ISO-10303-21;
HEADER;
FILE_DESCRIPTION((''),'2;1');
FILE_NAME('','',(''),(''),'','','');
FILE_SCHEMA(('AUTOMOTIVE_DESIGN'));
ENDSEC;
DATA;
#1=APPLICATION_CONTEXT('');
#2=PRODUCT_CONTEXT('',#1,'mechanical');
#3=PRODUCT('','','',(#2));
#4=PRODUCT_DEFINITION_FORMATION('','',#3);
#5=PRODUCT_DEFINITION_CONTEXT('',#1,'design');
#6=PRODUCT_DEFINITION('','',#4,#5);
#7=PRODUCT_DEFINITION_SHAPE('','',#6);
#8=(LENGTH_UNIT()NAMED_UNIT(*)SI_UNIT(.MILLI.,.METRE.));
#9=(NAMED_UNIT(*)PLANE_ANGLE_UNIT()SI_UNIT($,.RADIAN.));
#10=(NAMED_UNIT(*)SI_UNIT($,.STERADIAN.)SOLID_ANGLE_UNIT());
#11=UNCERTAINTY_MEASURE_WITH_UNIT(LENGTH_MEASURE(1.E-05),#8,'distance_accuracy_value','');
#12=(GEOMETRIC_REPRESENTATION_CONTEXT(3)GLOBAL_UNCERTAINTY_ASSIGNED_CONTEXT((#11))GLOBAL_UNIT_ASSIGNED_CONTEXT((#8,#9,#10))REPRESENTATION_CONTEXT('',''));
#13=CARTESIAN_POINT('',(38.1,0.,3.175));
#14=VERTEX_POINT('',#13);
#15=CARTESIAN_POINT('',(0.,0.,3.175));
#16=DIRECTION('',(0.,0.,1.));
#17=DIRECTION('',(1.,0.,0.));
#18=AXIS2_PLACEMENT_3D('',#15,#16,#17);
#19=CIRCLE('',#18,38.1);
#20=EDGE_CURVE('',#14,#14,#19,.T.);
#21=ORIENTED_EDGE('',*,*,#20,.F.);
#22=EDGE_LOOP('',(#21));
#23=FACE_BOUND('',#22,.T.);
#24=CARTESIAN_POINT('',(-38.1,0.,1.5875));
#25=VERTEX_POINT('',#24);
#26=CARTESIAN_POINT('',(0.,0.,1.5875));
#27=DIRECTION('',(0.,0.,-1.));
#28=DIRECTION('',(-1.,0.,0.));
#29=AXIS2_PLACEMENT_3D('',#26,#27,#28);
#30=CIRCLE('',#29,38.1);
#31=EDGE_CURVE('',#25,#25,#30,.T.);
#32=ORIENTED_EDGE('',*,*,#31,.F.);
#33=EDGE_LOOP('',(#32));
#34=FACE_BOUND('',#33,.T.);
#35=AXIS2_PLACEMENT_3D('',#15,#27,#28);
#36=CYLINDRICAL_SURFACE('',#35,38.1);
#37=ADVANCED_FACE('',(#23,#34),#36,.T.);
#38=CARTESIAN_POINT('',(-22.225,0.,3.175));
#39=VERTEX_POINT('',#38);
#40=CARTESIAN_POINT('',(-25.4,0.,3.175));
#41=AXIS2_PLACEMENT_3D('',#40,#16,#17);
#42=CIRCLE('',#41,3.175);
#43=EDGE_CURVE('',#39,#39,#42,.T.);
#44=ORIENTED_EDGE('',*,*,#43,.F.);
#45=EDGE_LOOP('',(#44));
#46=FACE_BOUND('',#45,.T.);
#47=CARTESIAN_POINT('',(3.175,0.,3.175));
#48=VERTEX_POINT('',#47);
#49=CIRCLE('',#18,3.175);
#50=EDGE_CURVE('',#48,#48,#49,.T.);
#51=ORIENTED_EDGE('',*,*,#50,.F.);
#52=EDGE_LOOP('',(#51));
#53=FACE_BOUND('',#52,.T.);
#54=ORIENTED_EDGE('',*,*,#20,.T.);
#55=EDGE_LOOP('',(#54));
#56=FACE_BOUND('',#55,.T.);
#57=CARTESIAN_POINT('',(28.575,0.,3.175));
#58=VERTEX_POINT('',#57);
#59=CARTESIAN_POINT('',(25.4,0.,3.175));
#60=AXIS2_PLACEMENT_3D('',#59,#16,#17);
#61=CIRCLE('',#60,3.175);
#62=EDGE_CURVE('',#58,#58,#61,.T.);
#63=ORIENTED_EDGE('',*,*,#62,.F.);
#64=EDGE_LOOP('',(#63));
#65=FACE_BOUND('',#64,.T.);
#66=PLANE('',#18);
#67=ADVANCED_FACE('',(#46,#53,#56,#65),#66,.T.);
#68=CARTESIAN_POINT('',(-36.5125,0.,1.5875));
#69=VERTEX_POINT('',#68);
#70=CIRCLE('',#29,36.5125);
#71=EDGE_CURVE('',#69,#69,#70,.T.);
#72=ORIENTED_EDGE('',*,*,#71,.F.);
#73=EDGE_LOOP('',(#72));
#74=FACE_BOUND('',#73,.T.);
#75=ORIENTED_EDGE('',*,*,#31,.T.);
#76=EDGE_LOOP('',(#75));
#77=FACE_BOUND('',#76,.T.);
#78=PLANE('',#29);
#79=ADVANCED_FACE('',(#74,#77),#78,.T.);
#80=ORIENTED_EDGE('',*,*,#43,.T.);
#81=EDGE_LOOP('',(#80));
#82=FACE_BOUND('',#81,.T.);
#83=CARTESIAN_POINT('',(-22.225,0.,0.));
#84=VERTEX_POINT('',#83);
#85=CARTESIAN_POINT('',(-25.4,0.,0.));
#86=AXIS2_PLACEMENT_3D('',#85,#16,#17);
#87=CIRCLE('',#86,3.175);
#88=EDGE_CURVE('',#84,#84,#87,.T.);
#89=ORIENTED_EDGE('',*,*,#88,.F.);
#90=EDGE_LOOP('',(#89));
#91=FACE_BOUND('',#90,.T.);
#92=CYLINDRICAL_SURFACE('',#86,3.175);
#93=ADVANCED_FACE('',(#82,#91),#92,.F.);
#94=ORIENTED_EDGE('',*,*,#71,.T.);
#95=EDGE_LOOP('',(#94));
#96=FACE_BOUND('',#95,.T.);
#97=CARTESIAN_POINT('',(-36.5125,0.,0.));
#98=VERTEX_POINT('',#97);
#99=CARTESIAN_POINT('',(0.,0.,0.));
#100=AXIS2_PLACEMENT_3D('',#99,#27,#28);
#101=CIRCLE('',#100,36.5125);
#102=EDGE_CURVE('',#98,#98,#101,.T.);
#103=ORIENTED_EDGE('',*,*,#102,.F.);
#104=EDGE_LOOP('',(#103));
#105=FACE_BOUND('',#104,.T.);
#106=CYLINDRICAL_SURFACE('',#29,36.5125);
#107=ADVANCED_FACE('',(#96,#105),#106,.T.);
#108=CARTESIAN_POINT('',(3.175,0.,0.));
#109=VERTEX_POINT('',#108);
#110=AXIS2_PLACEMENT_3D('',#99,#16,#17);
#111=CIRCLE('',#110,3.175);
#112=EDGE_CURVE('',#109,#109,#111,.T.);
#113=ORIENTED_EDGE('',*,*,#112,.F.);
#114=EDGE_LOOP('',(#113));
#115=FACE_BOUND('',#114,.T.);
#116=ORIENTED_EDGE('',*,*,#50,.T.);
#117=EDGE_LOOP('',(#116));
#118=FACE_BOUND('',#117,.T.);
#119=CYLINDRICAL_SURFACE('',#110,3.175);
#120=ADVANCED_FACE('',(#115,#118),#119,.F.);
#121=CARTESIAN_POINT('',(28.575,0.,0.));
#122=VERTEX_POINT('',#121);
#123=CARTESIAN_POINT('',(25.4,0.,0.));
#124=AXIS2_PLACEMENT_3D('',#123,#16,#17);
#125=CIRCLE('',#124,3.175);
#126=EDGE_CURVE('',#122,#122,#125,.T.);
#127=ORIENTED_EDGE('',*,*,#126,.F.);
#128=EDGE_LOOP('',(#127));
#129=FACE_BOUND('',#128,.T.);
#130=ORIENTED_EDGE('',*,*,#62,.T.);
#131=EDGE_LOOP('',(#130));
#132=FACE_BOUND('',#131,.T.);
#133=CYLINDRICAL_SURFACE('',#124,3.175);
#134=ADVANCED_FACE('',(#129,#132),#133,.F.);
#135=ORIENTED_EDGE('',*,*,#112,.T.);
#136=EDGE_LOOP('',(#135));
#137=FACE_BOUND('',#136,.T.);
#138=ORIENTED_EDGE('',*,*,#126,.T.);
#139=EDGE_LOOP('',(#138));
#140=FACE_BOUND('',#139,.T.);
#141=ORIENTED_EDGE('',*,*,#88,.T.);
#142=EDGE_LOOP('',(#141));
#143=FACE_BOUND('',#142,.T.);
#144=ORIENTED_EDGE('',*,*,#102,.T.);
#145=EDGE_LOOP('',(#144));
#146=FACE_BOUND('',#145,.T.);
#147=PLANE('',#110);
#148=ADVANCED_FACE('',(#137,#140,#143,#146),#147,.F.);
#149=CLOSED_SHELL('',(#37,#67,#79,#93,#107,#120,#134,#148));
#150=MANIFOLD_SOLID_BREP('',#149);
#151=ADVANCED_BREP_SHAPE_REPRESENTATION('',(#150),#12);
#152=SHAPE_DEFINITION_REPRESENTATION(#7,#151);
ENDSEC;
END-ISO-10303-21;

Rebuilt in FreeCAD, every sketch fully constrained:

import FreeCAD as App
import Part
import Sketcher
Q = App.Units.Quantity

doc = App.newDocument("Part")
body = doc.addObject("PartDesign::Body", "Body")

# Sketch on XY plane
sketch1 = doc.addObject("Sketcher::SketchObject", "Sketch")
body.addObject(sketch1)
sketch1.AttachmentSupport = (doc.XY_Plane, [""])
sketch1.MapMode = "FlatFace"
sketch1.addGeometry(Part.Circle(App.Vector(0, 0, 0), App.Vector(0, 0, 1), 38.1), False)
sketch1.addConstraint([
    Sketcher.Constraint("Coincident", 0, 3, -1, 1),
    Sketcher.Constraint("Diameter", 0, Q("3 in")),
])
pad1 = doc.addObject("PartDesign::Pad", "Pad")
body.addObject(pad1)
pad1.Profile = sketch1
pad1.Length = Q("0.125 in")

# Sketch on XY plane
sketch2 = doc.addObject("Sketcher::SketchObject", "Sketch001")
body.addObject(sketch2)
sketch2.AttachmentSupport = (doc.XY_Plane, [""])
sketch2.MapMode = "FlatFace"
sketch2.addGeometry([
    Part.Circle(App.Vector(0, 0, 0), App.Vector(0, 0, 1), 38.1),
    Part.Circle(App.Vector(0, 0, 0), App.Vector(0, 0, 1), 36.5125),
], False)
sketch2.addConstraint([
    Sketcher.Constraint("Coincident", 0, 3, -1, 1),
    Sketcher.Constraint("Coincident", 1, 3, -1, 1),
    Sketcher.Constraint("Diameter", 0, Q("3 in")),
    Sketcher.Constraint("Diameter", 1, Q("2.875 in")),
])
pocket1 = doc.addObject("PartDesign::Pocket", "Pocket")
body.addObject(pocket1)
pocket1.Profile = sketch2
pocket1.Length = Q("0.0625 in")
pocket1.Reversed = True

# Sketch on XY plane
sketch3 = doc.addObject("Sketcher::SketchObject", "Sketch002")
body.addObject(sketch3)
sketch3.AttachmentSupport = (doc.XY_Plane, [""])
sketch3.MapMode = "FlatFace"
sketch3.AttachmentOffset = App.Placement(App.Vector(0, 0, 0.125 * 25.4), App.Rotation())
sketch3.addGeometry([
    Part.Circle(App.Vector(0, 0, 0), App.Vector(0, 0, 1), 3.175),
    Part.Circle(App.Vector(25.4, 0, 0), App.Vector(0, 0, 1), 3.175),
    Part.Circle(App.Vector(-25.4, 0, 0), App.Vector(0, 0, 1), 3.175),
], False)
sketch3.addConstraint([
    Sketcher.Constraint("Coincident", 0, 3, -1, 1),
    Sketcher.Constraint("Equal", 0, 1),
    Sketcher.Constraint("Equal", 1, 2),
    Sketcher.Constraint("Symmetric", 1, 3, 2, 3, -1, 1),
    Sketcher.Constraint("PointOnObject", 1, 3, -1),
    Sketcher.Constraint("Diameter", 0, Q("0.25 in")),
    Sketcher.Constraint("DistanceX", -1, 1, 1, 3, Q("1 in")),
])
pocket2 = doc.addObject("PartDesign::Pocket", "Pocket001")
body.addObject(pocket2)
pocket2.Profile = sketch3
pocket2.Type = "ThroughAll"

doc.recompute()
